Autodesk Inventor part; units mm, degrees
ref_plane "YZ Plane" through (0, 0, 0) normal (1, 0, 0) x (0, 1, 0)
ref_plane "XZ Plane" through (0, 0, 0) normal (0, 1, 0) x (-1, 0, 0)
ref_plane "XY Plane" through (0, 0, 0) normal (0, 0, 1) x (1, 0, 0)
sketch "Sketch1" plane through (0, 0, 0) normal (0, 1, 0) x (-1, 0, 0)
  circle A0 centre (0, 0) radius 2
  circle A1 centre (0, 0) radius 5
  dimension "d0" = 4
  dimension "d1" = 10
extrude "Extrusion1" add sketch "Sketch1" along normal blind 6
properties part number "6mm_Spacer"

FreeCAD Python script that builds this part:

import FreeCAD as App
import Part
import Sketcher
from FreeCAD import Vector

doc = App.newDocument("Part")
body = doc.addObject("PartDesign::Body", "Body")

sketch1 = body.newObject("Sketcher::SketchObject", "Sketch")
sketch1.AttachmentSupport = (doc.getObject("XZ_Plane"), [""])
sketch1.MapMode = "FlatFace"
sketch1.addGeometry([
    Part.Circle(Vector(0, 0, 0), Vector(0, 0, 1), 5),
    Part.Circle(Vector(0, 0, 0), Vector(0, 0, 1), 2),
], False)
sketch1.addConstraint([
    Sketcher.Constraint("Coincident", 0, 3, -1, 1),
    Sketcher.Constraint("Coincident", 1, 3, -1, 1),
    Sketcher.Constraint("Diameter", 0, 10.0),
    Sketcher.Constraint("Diameter", 1, 4.0),
])
pad1 = body.newObject("PartDesign::Pad", "Pad")
pad1.Profile = sketch1
pad1.Length = 6
pad1.Reversed = True

doc.recompute()
